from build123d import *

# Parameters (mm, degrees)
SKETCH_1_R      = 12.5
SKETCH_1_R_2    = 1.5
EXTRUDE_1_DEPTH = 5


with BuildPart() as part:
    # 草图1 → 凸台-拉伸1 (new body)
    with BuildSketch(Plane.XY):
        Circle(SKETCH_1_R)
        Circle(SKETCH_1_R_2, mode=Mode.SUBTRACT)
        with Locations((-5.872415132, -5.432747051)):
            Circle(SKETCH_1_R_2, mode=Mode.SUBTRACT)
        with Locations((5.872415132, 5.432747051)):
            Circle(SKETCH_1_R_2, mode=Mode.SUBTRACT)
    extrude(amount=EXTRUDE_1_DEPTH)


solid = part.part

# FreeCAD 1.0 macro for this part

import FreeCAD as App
import Part
import Sketcher
Q = App.Units.Quantity

doc = App.newDocument("Part")
params = doc.addObject("Spreadsheet::Sheet", "Params")
for row, (alias, value) in enumerate([
    ("sketch1_diameter", "25 mm"),
    ("sketch1_diameter2", "3 mm"),
    ("pad1_length", "5 mm"),
], start=1):
    params.set(f"A{row}", alias)
    params.set(f"B{row}", "=" + value)
    params.setAlias(f"B{row}", alias)

body = doc.addObject("PartDesign::Body", "Body")

sketch1 = doc.addObject("Sketcher::SketchObject", "Sketch")
body.addObject(sketch1)
sketch1.AttachmentSupport = (doc.XY_Plane, [""])
sketch1.MapMode = "FlatFace"
sketch1.addGeometry(Part.Circle(App.Vector(0, 0, 0), App.Vector(0, 0, 1), 12.5), False)
sketch1.addGeometry(Part.Circle(App.Vector(-5.9, -5.4, 0), App.Vector(0, 0, 1), 1.5), False)
sketch1.addGeometry(Part.Circle(App.Vector(0, 0, 0), App.Vector(0, 0, 1), 1.5), False)
sketch1.addGeometry(Part.Circle(App.Vector(5.9, 5.4, 0), App.Vector(0, 0, 1), 1.5), False)
sketch1.addConstraint(Sketcher.Constraint("Coincident", 0, 3, -1, 1))
sketch1.addConstraint(Sketcher.Constraint("Coincident", 2, 3, -1, 1))
sketch1.addConstraint(Sketcher.Constraint("Equal", 1, 2))
sketch1.addConstraint(Sketcher.Constraint("Equal", 2, 3))
sketch1.addConstraint(Sketcher.Constraint("Symmetric", 1, 3, 3, 3, -1, 1))
sketch1.addConstraint(Sketcher.Constraint("Diameter", 0, Q("25 mm")))
sketch1.addConstraint(Sketcher.Constraint("Diameter", 1, Q("3 mm")))
sketch1.addConstraint(Sketcher.Constraint("DistanceX", 1, 3, 3, 3, Q("11.74483 mm")))
sketch1.addConstraint(Sketcher.Constraint("DistanceY", 1, 3, -1, 1, Q("5.432747 mm")))
sketch1.setExpression("Constraints[5]", "Params.sketch1_diameter")
sketch1.setExpression("Constraints[6]", "Params.sketch1_diameter2")
pad1 = doc.addObject("PartDesign::Pad", "Pad")
body.addObject(pad1)
pad1.Profile = sketch1
pad1.setExpression("Length", "Params.pad1_length")

doc.recompute()
